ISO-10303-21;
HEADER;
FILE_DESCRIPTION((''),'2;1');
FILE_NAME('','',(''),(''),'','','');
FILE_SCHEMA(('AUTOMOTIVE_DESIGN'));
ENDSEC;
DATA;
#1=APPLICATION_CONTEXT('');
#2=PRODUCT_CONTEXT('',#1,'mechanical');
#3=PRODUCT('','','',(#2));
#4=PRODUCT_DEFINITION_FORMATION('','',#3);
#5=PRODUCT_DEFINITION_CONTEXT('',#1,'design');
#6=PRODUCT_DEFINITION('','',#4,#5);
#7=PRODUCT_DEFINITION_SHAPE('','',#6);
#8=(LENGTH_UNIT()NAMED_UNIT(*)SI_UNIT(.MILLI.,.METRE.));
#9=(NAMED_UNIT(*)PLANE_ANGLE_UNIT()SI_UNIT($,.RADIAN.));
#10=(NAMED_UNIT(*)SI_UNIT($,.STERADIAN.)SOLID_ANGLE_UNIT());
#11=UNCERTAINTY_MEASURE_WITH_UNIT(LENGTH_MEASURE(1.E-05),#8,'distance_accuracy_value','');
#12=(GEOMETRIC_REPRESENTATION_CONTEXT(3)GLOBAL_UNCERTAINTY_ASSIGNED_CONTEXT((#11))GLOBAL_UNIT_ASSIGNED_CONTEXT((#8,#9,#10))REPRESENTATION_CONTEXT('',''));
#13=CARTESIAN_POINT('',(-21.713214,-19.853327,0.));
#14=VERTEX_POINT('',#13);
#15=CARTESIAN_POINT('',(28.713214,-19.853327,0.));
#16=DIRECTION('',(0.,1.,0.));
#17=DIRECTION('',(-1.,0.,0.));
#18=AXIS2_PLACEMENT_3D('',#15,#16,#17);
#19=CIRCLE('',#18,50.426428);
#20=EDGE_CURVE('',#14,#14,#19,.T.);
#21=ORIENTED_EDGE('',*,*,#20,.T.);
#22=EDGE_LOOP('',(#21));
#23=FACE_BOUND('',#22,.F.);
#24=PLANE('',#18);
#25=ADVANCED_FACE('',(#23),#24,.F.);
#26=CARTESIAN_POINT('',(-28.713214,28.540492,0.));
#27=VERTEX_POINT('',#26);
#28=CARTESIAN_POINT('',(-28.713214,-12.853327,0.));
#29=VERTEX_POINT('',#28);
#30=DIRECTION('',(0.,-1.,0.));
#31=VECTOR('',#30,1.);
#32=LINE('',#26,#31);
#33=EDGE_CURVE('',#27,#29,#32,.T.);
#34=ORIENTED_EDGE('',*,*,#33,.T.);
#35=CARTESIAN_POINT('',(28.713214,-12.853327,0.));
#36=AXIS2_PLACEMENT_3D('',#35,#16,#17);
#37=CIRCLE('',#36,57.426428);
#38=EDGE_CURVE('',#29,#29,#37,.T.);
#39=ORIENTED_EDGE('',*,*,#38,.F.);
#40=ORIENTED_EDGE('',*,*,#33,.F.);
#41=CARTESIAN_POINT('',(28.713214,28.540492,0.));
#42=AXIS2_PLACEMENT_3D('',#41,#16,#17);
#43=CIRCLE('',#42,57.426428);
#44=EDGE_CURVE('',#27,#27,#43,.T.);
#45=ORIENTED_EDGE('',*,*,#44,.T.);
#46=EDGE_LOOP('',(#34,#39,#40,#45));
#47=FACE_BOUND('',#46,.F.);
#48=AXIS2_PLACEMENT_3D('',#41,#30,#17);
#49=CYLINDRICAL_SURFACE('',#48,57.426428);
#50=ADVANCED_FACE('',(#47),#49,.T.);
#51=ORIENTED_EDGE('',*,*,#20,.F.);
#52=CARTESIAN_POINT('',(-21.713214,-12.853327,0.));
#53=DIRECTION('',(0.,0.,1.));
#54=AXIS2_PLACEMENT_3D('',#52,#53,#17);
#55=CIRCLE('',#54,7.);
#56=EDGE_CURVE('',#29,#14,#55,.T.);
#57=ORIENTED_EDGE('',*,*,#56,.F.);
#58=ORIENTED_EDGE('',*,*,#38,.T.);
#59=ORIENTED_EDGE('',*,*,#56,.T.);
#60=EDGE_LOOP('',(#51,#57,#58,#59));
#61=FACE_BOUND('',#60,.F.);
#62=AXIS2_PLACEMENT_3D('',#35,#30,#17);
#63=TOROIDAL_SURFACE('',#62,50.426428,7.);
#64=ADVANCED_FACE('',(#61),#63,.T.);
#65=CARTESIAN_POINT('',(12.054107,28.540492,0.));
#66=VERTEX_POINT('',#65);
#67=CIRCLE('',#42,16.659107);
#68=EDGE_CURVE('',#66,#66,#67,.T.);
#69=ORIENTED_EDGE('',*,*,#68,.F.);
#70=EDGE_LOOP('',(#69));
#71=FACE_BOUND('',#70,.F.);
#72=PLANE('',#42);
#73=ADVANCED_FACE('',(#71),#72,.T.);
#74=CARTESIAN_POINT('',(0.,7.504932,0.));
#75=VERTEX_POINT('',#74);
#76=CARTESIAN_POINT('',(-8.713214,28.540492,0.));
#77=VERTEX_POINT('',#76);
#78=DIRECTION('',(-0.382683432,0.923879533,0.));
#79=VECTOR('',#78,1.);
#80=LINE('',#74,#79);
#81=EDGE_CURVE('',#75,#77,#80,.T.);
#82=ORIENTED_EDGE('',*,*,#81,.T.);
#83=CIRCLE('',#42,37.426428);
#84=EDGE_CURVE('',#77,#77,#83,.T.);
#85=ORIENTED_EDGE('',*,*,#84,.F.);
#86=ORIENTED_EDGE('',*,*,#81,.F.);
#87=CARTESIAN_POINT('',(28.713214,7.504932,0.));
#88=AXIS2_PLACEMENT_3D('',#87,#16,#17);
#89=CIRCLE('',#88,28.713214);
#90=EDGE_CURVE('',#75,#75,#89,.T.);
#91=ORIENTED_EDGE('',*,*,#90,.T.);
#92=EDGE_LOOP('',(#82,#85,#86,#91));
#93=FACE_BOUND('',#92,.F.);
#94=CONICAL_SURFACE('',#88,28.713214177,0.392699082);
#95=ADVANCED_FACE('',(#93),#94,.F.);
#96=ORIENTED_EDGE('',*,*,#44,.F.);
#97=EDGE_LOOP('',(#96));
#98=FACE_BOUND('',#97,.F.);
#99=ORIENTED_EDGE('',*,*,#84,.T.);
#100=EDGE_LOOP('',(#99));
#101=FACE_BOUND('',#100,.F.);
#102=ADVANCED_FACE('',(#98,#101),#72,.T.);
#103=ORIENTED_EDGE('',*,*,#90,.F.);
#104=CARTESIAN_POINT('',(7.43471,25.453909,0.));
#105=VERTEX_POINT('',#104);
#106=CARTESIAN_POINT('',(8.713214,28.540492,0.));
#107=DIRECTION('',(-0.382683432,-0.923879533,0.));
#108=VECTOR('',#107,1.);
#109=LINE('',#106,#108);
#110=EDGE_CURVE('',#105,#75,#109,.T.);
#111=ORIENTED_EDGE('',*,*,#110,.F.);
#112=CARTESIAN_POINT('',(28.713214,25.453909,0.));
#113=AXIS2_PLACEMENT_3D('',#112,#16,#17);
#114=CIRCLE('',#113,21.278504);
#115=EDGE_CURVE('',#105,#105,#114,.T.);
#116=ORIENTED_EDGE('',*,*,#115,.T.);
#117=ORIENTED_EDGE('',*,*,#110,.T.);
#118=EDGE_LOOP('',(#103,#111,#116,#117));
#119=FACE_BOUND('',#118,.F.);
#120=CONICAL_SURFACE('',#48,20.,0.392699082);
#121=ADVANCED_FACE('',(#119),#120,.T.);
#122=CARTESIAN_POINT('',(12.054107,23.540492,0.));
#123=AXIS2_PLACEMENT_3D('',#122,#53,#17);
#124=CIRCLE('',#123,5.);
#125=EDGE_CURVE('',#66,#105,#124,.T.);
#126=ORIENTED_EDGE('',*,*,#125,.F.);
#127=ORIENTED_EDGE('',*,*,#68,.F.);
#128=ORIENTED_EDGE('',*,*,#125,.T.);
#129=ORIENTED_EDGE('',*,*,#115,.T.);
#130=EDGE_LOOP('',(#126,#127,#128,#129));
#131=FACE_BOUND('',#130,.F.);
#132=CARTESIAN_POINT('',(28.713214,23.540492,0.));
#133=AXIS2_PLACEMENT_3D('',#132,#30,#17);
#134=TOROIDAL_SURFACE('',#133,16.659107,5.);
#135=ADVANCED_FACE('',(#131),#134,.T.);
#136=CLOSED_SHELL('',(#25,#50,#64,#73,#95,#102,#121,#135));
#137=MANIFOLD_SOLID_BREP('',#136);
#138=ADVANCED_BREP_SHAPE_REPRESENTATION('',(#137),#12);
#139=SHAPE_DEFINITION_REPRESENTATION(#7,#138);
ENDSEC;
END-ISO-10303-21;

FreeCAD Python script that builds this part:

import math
import FreeCAD as App
import Part
import Sketcher
from FreeCAD import Vector
Q = App.Units.Quantity


def edges_at(feature, points):
    """Names of the edges that pass closest to the given points."""
    edges = feature.Shape.Edges
    near = lambda p: min(range(len(edges)), key=lambda i: edges[i].distToShape(Part.Vertex(*p))[0])
    return sorted({f"Edge{near(p) + 1}" for p in points})

doc = App.newDocument("Part")
params = doc.addObject("Spreadsheet::Sheet", "Params")
for row, (alias, value) in enumerate([
    ("sketch1_radius", "7 mm"),
    ("sketch1_width", "20 mm"),
    ("revolution_angle", "360 deg"),
    ("fillet_radius", "5 mm"),
], start=1):
    params.set(f"A{row}", alias)
    params.set(f"B{row}", "=" + value)
    params.setAlias(f"B{row}", alias)

body = doc.addObject("PartDesign::Body", "Body")

# Sketch on XY plane
sketch1 = doc.addObject("Sketcher::SketchObject", "Sketch")
body.addObject(sketch1)
sketch1.AttachmentSupport = (doc.XY_Plane, [""])
sketch1.MapMode = "FlatFace"
sketch1.addGeometry([
    Part.ArcOfCircle(Part.Circle(Vector(-22, -13, 0), Vector(0, 0, 1), 7), math.radians(180), math.radians(270)),  # 0
    Part.LineSegment(Vector(-22, -20, 0), Vector(29, -20, 0)),  # 1
    Part.LineSegment(Vector(29, -20, 0), Vector(29, 29, 0)),  # 2
    Part.LineSegment(Vector(29, 29, 0), Vector(9, 29, 0)),  # 3
    Part.LineSegment(Vector(9, 29, 0), Vector(0, 8, 0)),  # 4
    Part.LineSegment(Vector(0, 8, 0), Vector(-9, 29, 0)),  # 5
    Part.LineSegment(Vector(-9, 29, 0), Vector(-29, 29, 0)),  # 6
    Part.LineSegment(Vector(-29, 29, 0), Vector(-29, -13, 0)),  # 7
], False)
sketch1.addGeometry(Part.LineSegment(Vector(29, -20, 0), Vector(29, 29, 0)), True)  # axis
sketch1.addConstraint([
    Sketcher.Constraint("Tangent", 0, 2, 1, 1),
    Sketcher.Constraint("Coincident", 1, 2, 2, 1),
    Sketcher.Constraint("Coincident", 2, 2, 3, 1),
    Sketcher.Constraint("Coincident", 3, 2, 4, 1),
    Sketcher.Constraint("Coincident", 4, 2, 5, 1),
    Sketcher.Constraint("Coincident", 5, 2, 6, 1),
    Sketcher.Constraint("Coincident", 6, 2, 7, 1),
    Sketcher.Constraint("Tangent", 7, 2, 0, 1),
    Sketcher.Constraint("Horizontal", 1),
    Sketcher.Constraint("Vertical", 2),
    Sketcher.Constraint("Horizontal", 3),
    Sketcher.Constraint("Horizontal", 6),
    Sketcher.Constraint("Vertical", 7),
    Sketcher.Constraint("Vertical", 8),
    Sketcher.Constraint("Coincident", 8, 1, 1, 2),
    Sketcher.Constraint("Symmetric", 3, 2, 5, 2, -2),
    Sketcher.Constraint("Symmetric", 6, 2, 8, 2, -2),
    Sketcher.Constraint("PointOnObject", 4, 2, -2),
    Sketcher.Constraint("Radius", 0, Q("7 mm")),
    Sketcher.Constraint("DistanceX", 3, 2, 3, 1, Q("20 mm")),
    Sketcher.Constraint("Angle", 4, Q("-112.5 deg")),
    Sketcher.Constraint("DistanceX", 1, 1, 1, 2, Q("50.426428 mm")),
    Sketcher.Constraint("DistanceY", 2, 1, 2, 2, Q("48.393819 mm")),
    Sketcher.Constraint("DistanceY", -1, 1, 2, 2, Q("28.540492 mm")),
])
sketch1.setExpression("Constraints[18]", "Params.sketch1_radius")
sketch1.setExpression("Constraints[19]", "Params.sketch1_width")
revolution = doc.addObject("PartDesign::Revolution", "Revolution")
body.addObject(revolution)
revolution.Profile = sketch1
revolution.ReferenceAxis = (sketch1, ["Axis0"])
revolution.setExpression("Angle", "Params.revolution_angle")
doc.recompute()

fillet = doc.addObject("PartDesign::Fillet", "Fillet")
body.addObject(fillet)
fillet.Base = (revolution, edges_at(revolution, [(48.713, 28.54, 0)]))
fillet.setExpression("Radius", "Params.fillet_radius")

doc.recompute()
